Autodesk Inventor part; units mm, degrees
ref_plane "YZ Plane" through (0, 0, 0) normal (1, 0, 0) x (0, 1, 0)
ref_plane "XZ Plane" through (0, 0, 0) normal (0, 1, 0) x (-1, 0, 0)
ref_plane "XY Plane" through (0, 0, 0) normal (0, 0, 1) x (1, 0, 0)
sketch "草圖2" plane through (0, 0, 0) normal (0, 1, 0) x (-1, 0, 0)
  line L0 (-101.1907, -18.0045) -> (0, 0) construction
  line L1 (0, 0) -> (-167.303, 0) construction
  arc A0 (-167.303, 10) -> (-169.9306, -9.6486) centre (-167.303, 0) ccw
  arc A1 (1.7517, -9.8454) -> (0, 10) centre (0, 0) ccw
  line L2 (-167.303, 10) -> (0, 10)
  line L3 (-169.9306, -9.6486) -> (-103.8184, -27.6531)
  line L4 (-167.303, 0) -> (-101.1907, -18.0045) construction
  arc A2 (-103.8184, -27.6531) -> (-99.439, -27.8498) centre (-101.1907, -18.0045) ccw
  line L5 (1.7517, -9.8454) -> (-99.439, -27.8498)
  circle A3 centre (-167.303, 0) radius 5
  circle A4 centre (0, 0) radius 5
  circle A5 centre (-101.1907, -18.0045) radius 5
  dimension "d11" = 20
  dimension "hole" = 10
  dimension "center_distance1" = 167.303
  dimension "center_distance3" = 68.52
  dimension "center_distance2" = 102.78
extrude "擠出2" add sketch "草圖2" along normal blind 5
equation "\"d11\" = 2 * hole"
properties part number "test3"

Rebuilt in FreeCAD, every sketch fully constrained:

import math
import FreeCAD as App
import Part
import Sketcher
from FreeCAD import Vector

doc = App.newDocument("Part")
body = doc.addObject("PartDesign::Body", "Body")

sketch1 = body.newObject("Sketcher::SketchObject", "Sketch")
sketch1.AttachmentSupport = (doc.getObject("XZ_Plane"), [""])
sketch1.MapMode = "FlatFace"
sketch1.addGeometry([
    Part.LineSegment(Vector(0, 10, 0), Vector(167.303, 10, 0)),
    Part.ArcOfCircle(Part.Circle(Vector(167.303, 0, 0), Vector(0, 0, 1), 10), math.radians(-74.766088), math.radians(90)),
    Part.LineSegment(Vector(169.9306, -9.6486, 0), Vector(103.8184, -27.6531, 0)),
    Part.ArcOfCircle(Part.Circle(Vector(101.191005, -18.006446, 0), Vector(0, 0, 1), 9.998057), math.radians(-100.092306), math.radians(-74.76429)),
    Part.LineSegment(Vector(99.439, -27.8498, 0), Vector(-1.7517, -9.8454, 0)),
    Part.ArcOfCircle(Part.Circle(Vector(0, 0, 0), Vector(0, 0, 1), 10.000018), math.radians(90), math.radians(259.911467)),
    Part.Circle(Vector(101.1907, -18.0045, 0), Vector(0, 0, 1), 5),
    Part.Circle(Vector(167.303, 0, 0), Vector(0, 0, 1), 5),
    Part.Circle(Vector(0, 0, 0), Vector(0, 0, 1), 5),
], False)
sketch1.addConstraint([
    Sketcher.Constraint("Coincident", 0, 2, 1, 2),
    Sketcher.Constraint("Coincident", 1, 1, 2, 1),
    Sketcher.Constraint("Coincident", 2, 2, 3, 2),
    Sketcher.Constraint("Coincident", 3, 1, 4, 1),
    Sketcher.Constraint("Coincident", 4, 2, 5, 2),
    Sketcher.Constraint("Coincident", 5, 1, 0, 1),
    Sketcher.Constraint("Horizontal", 0),
    Sketcher.Constraint("Coincident", 5, 3, -1, 1),
    Sketcher.Constraint("Coincident", 8, 3, -1, 1),
    Sketcher.Constraint("Coincident", 7, 3, 1, 3),
    Sketcher.Constraint("PointOnObject", 1, 3, -1),
    Sketcher.Constraint("PointOnObject", 5, 1, -2),
    Sketcher.Constraint("Diameter", 6, 10.0),
    Sketcher.Constraint("Diameter", 7, 10.0),
    Sketcher.Constraint("Diameter", 8, 10.0),
    Sketcher.Constraint("Radius", 1, 10.0),
    Sketcher.Constraint("Distance", 2, 68.52),
    Sketcher.Constraint("Distance", 4, 102.78),
    Sketcher.Constraint("DistanceX", 0, 1, 0, 2, 167.303),
    Sketcher.Constraint("DistanceX", -1, 1, 1, 3, 167.303),
    Sketcher.Constraint("Radius", 3, 9.998),
    Sketcher.Constraint("DistanceX", 6, 3, 1, 1, 68.74),
    Sketcher.Constraint("DistanceX", -1, 1, 3, 3, 101.191),
    Sketcher.Constraint("DistanceY", 2, 2, -1, 1, 27.653),
    Sketcher.Constraint("DistanceX", -1, 1, 3, 1, 99.439),
    Sketcher.Constraint("DistanceY", 3, 3, 6, 3, 0.002),
    Sketcher.Constraint("DistanceY", 6, 3, 1, 1, 8.356),
])
pad1 = body.newObject("PartDesign::Pad", "Pad")
pad1.Profile = sketch1
pad1.Length = 5
pad1.Reversed = True

doc.recompute()
